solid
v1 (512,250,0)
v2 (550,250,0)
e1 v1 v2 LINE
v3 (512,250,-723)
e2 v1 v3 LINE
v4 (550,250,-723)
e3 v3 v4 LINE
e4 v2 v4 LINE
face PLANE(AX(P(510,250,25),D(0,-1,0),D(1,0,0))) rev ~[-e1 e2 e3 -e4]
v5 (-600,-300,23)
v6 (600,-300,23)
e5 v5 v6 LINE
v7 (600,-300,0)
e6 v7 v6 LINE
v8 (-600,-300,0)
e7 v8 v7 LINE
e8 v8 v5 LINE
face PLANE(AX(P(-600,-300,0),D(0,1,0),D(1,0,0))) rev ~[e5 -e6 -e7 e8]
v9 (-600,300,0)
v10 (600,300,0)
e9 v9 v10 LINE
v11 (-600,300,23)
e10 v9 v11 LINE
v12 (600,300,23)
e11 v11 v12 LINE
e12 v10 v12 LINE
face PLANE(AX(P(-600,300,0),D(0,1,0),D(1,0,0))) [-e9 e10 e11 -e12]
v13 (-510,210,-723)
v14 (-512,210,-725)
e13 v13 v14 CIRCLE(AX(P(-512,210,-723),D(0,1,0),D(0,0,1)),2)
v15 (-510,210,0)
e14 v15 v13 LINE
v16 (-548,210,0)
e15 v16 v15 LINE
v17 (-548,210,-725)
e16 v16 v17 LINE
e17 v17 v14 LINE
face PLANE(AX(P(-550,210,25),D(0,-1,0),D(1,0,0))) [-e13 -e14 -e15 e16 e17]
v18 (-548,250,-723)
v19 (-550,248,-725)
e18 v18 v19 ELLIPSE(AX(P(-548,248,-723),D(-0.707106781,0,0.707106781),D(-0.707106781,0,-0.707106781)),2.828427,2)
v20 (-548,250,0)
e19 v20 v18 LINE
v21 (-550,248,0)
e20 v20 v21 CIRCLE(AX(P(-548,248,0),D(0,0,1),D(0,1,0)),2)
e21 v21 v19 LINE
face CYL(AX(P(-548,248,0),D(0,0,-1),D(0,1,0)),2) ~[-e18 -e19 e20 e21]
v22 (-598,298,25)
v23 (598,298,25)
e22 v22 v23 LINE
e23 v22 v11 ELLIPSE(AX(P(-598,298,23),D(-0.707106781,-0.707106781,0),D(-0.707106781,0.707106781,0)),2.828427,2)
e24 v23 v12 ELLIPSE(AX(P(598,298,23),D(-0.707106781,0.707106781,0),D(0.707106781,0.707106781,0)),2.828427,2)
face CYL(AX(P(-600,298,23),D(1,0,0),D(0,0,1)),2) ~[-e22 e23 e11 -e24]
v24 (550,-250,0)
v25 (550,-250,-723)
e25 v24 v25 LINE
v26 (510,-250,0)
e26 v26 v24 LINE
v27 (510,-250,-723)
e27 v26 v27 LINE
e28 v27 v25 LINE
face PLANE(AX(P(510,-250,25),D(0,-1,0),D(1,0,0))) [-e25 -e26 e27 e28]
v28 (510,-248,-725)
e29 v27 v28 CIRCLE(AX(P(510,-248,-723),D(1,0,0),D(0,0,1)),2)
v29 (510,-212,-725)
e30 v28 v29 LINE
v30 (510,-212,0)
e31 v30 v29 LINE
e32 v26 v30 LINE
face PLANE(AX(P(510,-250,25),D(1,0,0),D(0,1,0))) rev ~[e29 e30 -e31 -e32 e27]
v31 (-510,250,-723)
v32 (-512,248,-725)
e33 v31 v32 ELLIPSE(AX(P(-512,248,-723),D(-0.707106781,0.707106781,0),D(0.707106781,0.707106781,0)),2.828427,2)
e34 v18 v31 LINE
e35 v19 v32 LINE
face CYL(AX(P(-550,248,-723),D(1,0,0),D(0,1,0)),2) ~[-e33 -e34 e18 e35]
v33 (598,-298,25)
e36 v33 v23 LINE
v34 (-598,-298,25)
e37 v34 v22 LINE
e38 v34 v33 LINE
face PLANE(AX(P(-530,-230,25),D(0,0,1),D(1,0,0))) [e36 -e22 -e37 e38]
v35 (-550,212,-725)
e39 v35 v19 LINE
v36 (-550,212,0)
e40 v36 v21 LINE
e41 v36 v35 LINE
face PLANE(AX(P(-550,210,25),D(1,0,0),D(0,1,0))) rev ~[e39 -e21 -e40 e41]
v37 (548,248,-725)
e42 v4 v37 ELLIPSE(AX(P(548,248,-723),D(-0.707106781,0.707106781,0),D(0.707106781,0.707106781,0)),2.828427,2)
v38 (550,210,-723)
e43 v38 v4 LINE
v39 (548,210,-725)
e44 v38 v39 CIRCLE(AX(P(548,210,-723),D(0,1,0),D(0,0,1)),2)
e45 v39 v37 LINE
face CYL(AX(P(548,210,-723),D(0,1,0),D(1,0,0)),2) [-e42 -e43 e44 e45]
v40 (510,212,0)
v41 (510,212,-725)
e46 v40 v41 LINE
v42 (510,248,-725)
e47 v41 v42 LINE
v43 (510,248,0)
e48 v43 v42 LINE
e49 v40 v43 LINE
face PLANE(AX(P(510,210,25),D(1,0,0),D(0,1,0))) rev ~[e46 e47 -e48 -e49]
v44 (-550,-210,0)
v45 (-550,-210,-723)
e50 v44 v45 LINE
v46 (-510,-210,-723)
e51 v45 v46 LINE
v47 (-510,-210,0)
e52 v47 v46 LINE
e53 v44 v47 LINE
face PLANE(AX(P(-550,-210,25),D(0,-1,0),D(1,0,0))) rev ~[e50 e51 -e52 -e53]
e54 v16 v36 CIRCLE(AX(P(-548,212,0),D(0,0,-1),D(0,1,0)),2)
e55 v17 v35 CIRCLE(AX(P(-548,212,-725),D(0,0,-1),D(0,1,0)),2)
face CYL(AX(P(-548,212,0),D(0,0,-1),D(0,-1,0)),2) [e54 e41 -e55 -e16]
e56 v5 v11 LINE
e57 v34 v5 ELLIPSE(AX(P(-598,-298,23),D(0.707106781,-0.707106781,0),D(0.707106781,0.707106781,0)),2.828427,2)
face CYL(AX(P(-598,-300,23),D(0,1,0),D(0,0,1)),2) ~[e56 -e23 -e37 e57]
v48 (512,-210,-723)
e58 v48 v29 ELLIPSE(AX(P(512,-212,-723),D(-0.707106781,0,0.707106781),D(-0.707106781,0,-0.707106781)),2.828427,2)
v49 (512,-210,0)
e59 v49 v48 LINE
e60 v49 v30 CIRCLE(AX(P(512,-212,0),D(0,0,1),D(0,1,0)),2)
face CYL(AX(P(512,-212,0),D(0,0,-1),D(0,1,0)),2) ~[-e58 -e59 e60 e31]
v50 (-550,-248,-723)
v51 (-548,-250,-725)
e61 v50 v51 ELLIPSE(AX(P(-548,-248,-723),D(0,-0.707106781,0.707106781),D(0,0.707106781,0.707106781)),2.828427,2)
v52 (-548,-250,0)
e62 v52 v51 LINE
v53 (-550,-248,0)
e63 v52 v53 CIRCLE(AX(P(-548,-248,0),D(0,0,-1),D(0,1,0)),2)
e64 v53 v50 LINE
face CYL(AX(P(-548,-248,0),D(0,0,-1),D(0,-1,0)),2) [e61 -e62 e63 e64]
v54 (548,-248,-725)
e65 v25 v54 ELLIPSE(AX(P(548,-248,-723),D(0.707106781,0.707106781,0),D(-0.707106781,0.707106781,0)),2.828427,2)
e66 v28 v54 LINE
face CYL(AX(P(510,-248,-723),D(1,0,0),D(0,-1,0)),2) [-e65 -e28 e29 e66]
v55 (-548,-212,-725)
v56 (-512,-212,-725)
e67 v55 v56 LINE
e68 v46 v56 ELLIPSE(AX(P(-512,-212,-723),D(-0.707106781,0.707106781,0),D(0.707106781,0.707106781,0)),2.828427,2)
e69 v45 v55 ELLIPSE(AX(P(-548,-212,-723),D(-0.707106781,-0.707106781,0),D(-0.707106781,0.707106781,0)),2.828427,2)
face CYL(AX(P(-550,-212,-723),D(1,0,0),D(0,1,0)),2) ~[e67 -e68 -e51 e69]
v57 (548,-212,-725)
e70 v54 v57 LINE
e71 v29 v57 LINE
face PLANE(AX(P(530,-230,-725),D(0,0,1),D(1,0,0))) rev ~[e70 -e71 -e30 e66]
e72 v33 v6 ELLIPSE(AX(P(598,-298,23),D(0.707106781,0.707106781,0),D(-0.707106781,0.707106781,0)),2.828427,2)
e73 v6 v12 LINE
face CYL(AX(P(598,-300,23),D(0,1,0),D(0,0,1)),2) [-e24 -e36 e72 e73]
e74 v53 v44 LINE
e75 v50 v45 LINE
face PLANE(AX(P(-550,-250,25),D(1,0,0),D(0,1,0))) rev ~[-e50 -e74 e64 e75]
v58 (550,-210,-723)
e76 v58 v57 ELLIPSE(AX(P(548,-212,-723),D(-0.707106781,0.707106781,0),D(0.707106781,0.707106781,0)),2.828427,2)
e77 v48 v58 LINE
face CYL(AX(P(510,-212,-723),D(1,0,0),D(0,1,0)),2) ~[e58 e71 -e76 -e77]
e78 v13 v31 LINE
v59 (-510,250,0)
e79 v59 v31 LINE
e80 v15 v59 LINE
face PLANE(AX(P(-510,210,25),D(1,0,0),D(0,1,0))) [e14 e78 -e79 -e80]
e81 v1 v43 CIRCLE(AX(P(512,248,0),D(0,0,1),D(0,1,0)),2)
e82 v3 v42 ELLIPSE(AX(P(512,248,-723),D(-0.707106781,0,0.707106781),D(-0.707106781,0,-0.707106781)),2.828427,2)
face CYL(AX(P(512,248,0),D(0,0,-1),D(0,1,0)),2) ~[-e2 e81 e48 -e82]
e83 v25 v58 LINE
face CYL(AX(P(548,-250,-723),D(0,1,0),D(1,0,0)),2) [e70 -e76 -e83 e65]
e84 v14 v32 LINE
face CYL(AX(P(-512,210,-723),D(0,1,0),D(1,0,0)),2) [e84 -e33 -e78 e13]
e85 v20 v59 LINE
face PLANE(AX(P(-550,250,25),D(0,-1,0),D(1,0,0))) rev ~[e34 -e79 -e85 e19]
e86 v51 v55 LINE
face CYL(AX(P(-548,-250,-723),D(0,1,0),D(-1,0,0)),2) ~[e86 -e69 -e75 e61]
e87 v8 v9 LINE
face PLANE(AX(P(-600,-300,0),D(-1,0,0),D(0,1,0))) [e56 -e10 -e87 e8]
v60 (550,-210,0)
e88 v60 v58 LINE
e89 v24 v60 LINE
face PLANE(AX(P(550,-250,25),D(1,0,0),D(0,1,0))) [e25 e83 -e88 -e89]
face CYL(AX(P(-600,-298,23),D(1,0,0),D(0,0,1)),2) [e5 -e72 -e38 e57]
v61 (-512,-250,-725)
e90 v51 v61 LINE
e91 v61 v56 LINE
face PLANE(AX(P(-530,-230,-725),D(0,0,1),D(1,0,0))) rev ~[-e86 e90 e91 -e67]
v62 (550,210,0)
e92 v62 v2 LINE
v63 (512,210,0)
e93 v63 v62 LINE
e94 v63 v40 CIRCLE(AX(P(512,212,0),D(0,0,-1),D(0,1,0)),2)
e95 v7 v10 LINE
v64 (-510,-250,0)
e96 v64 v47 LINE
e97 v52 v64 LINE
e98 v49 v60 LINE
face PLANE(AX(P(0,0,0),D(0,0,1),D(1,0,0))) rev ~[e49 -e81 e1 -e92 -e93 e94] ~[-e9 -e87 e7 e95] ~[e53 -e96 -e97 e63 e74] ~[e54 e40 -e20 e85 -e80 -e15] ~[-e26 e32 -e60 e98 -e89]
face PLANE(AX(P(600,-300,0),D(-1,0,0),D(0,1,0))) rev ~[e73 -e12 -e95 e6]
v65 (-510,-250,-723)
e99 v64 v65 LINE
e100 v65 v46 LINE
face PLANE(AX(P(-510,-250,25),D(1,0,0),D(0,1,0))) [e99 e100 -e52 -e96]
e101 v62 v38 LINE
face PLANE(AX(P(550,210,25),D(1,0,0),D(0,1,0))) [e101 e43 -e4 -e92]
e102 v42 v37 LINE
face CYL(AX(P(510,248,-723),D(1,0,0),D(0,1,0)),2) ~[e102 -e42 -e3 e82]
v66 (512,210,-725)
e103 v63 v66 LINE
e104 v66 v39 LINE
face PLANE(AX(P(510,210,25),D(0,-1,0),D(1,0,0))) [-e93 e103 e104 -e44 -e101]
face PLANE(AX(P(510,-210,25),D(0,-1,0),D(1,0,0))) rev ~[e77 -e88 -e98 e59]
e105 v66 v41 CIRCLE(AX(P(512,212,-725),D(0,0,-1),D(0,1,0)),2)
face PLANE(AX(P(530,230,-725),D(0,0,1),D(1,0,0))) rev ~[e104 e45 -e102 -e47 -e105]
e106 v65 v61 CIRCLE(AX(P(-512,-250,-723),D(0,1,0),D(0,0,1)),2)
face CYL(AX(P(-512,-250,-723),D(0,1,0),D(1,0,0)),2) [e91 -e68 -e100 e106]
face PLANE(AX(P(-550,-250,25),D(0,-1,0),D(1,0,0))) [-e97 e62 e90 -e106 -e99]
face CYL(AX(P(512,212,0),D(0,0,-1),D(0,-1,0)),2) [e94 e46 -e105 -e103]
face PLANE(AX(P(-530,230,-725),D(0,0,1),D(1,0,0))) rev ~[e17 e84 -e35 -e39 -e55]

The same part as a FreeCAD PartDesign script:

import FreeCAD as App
import Part
import Sketcher
Q = App.Units.Quantity


def edges_at(feature, points):
    """Names of the edges that pass closest to the given points."""
    edges = feature.Shape.Edges
    near = lambda p: min(range(len(edges)), key=lambda i: edges[i].distToShape(Part.Vertex(*p))[0])
    return sorted({f"Edge{near(p) + 1}" for p in points})


def add_polygon(sketch, points):
    """Adds a closed chain of lines whose ends are joined by coincident constraints."""
    first, n = sketch.GeometryCount, len(points)
    for a, b in zip(points, points[1:] + points[:1]):
        sketch.addGeometry(Part.LineSegment(App.Vector(*a, 0), App.Vector(*b, 0)), False)
    for i in range(n):
        sketch.addConstraint(Sketcher.Constraint("Coincident", first + i, 2, first + (i + 1) % n, 1))

doc = App.newDocument("Part")
body = doc.addObject("PartDesign::Body", "Body")

# Sketch on XY plane
sketch1 = doc.addObject("Sketcher::SketchObject", "Sketch")
body.addObject(sketch1)
sketch1.AttachmentSupport = (doc.XY_Plane, [""])
sketch1.MapMode = "FlatFace"
add_polygon(sketch1, [(-600, 300), (-600, -300), (600, -300), (600, 300)])  # lines 0-3
sketch1.addConstraint(Sketcher.Constraint("Vertical", 0))
sketch1.addConstraint(Sketcher.Constraint("Horizontal", 1))
sketch1.addConstraint(Sketcher.Constraint("Vertical", 2))
sketch1.addConstraint(Sketcher.Constraint("Horizontal", 3))
sketch1.addConstraint(Sketcher.Constraint("Symmetric", 0, 2, 2, 2, -1, 1))
sketch1.addConstraint(Sketcher.Constraint("DistanceX", 1, 1, 1, 2, Q("1200 mm")))
sketch1.addConstraint(Sketcher.Constraint("DistanceY", 0, 2, 0, 1, Q("600 mm")))
pad1 = doc.addObject("PartDesign::Pad", "Pad")
body.addObject(pad1)
pad1.Profile = sketch1
pad1.Length = 25

# Sketch on XY plane
sketch2 = doc.addObject("Sketcher::SketchObject", "Sketch001")
body.addObject(sketch2)
sketch2.AttachmentSupport = (doc.XY_Plane, [""])
sketch2.MapMode = "FlatFace"
sketch2.AttachmentOffset = App.Placement(App.Vector(0, 0, 25), App.Rotation())
add_polygon(sketch2, [(-550, -210), (-550, -250), (-510, -250), (-510, -210)])  # lines 0-3
add_polygon(sketch2, [(510, -210), (510, -250), (550, -250), (550, -210)])  # lines 4-7
add_polygon(sketch2, [(-550, 250), (-550, 210), (-510, 210), (-510, 250)])  # lines 8-11
add_polygon(sketch2, [(510, 250), (510, 210), (550, 210), (550, 250)])  # lines 12-15
sketch2.addConstraint(Sketcher.Constraint("Vertical", 0))
sketch2.addConstraint(Sketcher.Constraint("Horizontal", 1))
sketch2.addConstraint(Sketcher.Constraint("Vertical", 2))
sketch2.addConstraint(Sketcher.Constraint("Horizontal", 3))
sketch2.addConstraint(Sketcher.Constraint("Vertical", 4))
sketch2.addConstraint(Sketcher.Constraint("Horizontal", 5))
sketch2.addConstraint(Sketcher.Constraint("Vertical", 6))
sketch2.addConstraint(Sketcher.Constraint("Horizontal", 7))
sketch2.addConstraint(Sketcher.Constraint("Vertical", 8))
sketch2.addConstraint(Sketcher.Constraint("Horizontal", 9))
sketch2.addConstraint(Sketcher.Constraint("Vertical", 10))
sketch2.addConstraint(Sketcher.Constraint("Horizontal", 11))
sketch2.addConstraint(Sketcher.Constraint("Vertical", 12))
sketch2.addConstraint(Sketcher.Constraint("Horizontal", 13))
sketch2.addConstraint(Sketcher.Constraint("Vertical", 14))
sketch2.addConstraint(Sketcher.Constraint("Horizontal", 15))
sketch2.addConstraint(Sketcher.Constraint("Symmetric", 6, 2, 8, 2, -1, 1))
sketch2.addConstraint(Sketcher.Constraint("Symmetric", 4, 2, 10, 2, -1, 1))
sketch2.addConstraint(Sketcher.Constraint("Symmetric", 2, 2, 12, 2, -1, 1))
sketch2.addConstraint(Sketcher.Constraint("Symmetric", 0, 2, 14, 2, -1, 1))
sketch2.addConstraint(Sketcher.Constraint("Symmetric", 1, 2, 4, 2, -2))
sketch2.addConstraint(Sketcher.Constraint("Symmetric", 3, 2, 6, 2, -2))
sketch2.addConstraint(Sketcher.Constraint("Equal", 15, 0))
sketch2.addConstraint(Sketcher.Constraint("DistanceX", 1, 1, 1, 2, Q("40 mm")))
sketch2.addConstraint(Sketcher.Constraint("DistanceX", 0, 2, -1, 1, Q("550 mm")))
sketch2.addConstraint(Sketcher.Constraint("DistanceY", 0, 2, -1, 1, Q("250 mm")))
pad2 = doc.addObject("PartDesign::Pad", "Pad001")
body.addObject(pad2)
pad2.Profile = sketch2
pad2.Length = 750
pad2.Reversed = True
doc.recompute()

fillet = doc.addObject("PartDesign::Fillet", "Fillet")
body.addObject(fillet)
fillet.Base = (pad2, edges_at(pad2, [
    (510, 250, -362.5),
    (550, 230, -725),
    (510, 210, -362.5),
    (530, 250, -725),
    (-550, 250, -362.5),
    (-510, 230, -725),
    (-550, 210, -362.5),
    (-530, 250, -725),
    (510, -210, -362.5),
    (550, -230, -725),
    (530, -250, -725),
    (530, -210, -725),
    (-550, -230, -725),
    (-510, -230, -725),
    (-550, -250, -362.5),
    (-530, -210, -725),
    (-600, 0, 25),
    (600, 0, 25),
    (0, -300, 25),
    (0, 300, 25),
]))
fillet.Radius = 2

doc.recompute()
